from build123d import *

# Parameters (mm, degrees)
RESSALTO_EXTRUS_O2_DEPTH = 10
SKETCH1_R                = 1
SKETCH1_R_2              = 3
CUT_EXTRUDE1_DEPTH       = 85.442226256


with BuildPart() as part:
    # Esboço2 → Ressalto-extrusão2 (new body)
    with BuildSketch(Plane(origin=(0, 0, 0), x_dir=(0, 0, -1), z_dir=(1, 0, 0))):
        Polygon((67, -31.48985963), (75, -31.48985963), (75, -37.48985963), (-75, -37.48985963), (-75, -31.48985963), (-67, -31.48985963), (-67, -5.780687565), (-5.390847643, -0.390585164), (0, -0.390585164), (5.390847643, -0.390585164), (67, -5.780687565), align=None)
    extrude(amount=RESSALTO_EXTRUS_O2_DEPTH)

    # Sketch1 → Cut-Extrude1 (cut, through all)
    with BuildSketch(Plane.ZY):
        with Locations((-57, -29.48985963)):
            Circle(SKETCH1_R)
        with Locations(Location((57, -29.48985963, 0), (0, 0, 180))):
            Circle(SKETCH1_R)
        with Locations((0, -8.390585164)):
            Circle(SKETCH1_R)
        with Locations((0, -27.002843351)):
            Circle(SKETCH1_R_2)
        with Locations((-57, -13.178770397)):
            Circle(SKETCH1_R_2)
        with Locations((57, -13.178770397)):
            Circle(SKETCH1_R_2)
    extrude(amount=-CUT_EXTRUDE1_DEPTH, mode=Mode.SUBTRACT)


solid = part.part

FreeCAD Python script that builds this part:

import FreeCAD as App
import Part
import Sketcher
from FreeCAD import Vector
Q = App.Units.Quantity

doc = App.newDocument("Part")
params = doc.addObject("Spreadsheet::Sheet", "Params")
for row, (alias, value) in enumerate([
    ("sketch1_width", "6 mm"),
    ("sketch1_height", "8 mm"),
    ("sketch1_height2", "150 mm"),
    ("pad1_length", "10 mm"),
    ("sketch2_diameter", "2 mm"),
    ("sketch2_diameter2", "6 mm"),
], start=1):
    params.set(f"A{row}", alias)
    params.set(f"B{row}", "=" + value)
    params.setAlias(f"B{row}", alias)

body = doc.addObject("PartDesign::Body", "Body")

sketch1 = doc.addObject("Sketcher::SketchObject", "Sketch")
body.addObject(sketch1)
sketch1.AttachmentSupport = (doc.YZ_Plane, [""])
sketch1.MapMode = "FlatFace"
sketch1.addGeometry([
    Part.LineSegment(Vector(-31, -75, 0), Vector(-31, -67, 0)),
    Part.LineSegment(Vector(-31, -67, 0), Vector(-6, -67, 0)),
    Part.LineSegment(Vector(-6, -67, 0), Vector(0, -5, 0)),
    Part.LineSegment(Vector(0, -5, 0), Vector(0, 5, 0)),
    Part.LineSegment(Vector(0, 5, 0), Vector(-6, 67, 0)),
    Part.LineSegment(Vector(-6, 67, 0), Vector(-31, 67, 0)),
    Part.LineSegment(Vector(-31, 67, 0), Vector(-31, 75, 0)),
    Part.LineSegment(Vector(-31, 75, 0), Vector(-37, 75, 0)),
    Part.LineSegment(Vector(-37, 75, 0), Vector(-37, -75, 0)),
    Part.LineSegment(Vector(-37, -75, 0), Vector(-31, -75, 0)),
], False)
sketch1.addConstraint([
    Sketcher.Constraint("Coincident", 0, 2, 1, 1),
    Sketcher.Constraint("Coincident", 1, 2, 2, 1),
    Sketcher.Constraint("Coincident", 2, 2, 3, 1),
    Sketcher.Constraint("Coincident", 3, 2, 4, 1),
    Sketcher.Constraint("Coincident", 4, 2, 5, 1),
    Sketcher.Constraint("Coincident", 5, 2, 6, 1),
    Sketcher.Constraint("Coincident", 6, 2, 7, 1),
    Sketcher.Constraint("Coincident", 7, 2, 8, 1),
    Sketcher.Constraint("Coincident", 8, 2, 9, 1),
    Sketcher.Constraint("Coincident", 9, 2, 0, 1),
    Sketcher.Constraint("Vertical", 0),
    Sketcher.Constraint("Horizontal", 1),
    Sketcher.Constraint("Vertical", 3),
    Sketcher.Constraint("Horizontal", 5),
    Sketcher.Constraint("Vertical", 6),
    Sketcher.Constraint("Horizontal", 7),
    Sketcher.Constraint("Vertical", 8),
    Sketcher.Constraint("Horizontal", 9),
    Sketcher.Constraint("Symmetric", 1, 2, 4, 2, -1),
    Sketcher.Constraint("Symmetric", 6, 2, 9, 2, -1),
    Sketcher.Constraint("Equal", 2, 4),
    Sketcher.Constraint("DistanceX", 7, 2, 7, 1, 6.0),
    Sketcher.Constraint("DistanceY", 0, 1, 0, 2, 8.0),
    Sketcher.Constraint("DistanceY", 8, 2, 8, 1, 150.0),
    Sketcher.Constraint("Angle", 2, Q("85 deg")),
    Sketcher.Constraint("Distance", 2, 61.844489),
    Sketcher.Constraint("DistanceX", 1, 1, 1, 2, 25.709172),
    Sketcher.Constraint("DistanceX", 0, 2, -1, 1, 31.48986),
])
sketch1.setExpression("Constraints[21]", "Params.sketch1_width")
sketch1.setExpression("Constraints[22]", "Params.sketch1_height")
sketch1.setExpression("Constraints[23]", "Params.sketch1_height2")
pad1 = doc.addObject("PartDesign::Pad", "Pad")
body.addObject(pad1)
pad1.Profile = sketch1
pad1.setExpression("Length", "Params.pad1_length")

sketch2 = doc.addObject("Sketcher::SketchObject", "Sketch001")
body.addObject(sketch2)
sketch2.AttachmentSupport = (doc.YZ_Plane, [""])
sketch2.MapMode = "FlatFace"
sketch2.addGeometry([
    Part.Circle(Vector(-29.5, -57, 0), Vector(0, 0, 1), 1),
    Part.Circle(Vector(-29.5, 57, 0), Vector(0, 0, 1), 1),
    Part.Circle(Vector(-8.4, 0, 0), Vector(0, 0, 1), 1),
    Part.Circle(Vector(-27, 0, 0), Vector(0, 0, 1), 3),
    Part.Circle(Vector(-13.2, -57, 0), Vector(0, 0, 1), 3),
    Part.Circle(Vector(-13.2, 57, 0), Vector(0, 0, 1), 3),
], False)
sketch2.addConstraint([
    Sketcher.Constraint("Equal", 0, 1),
    Sketcher.Constraint("Equal", 1, 2),
    Sketcher.Constraint("Equal", 3, 4),
    Sketcher.Constraint("Equal", 4, 5),
    Sketcher.Constraint("Symmetric", 0, 3, 1, 3, -1),
    Sketcher.Constraint("Symmetric", 4, 3, 5, 3, -1),
    Sketcher.Constraint("PointOnObject", 2, 3, -1),
    Sketcher.Constraint("PointOnObject", 3, 3, -1),
    Sketcher.Constraint("Horizontal", 0, 3, 4, 3),
    Sketcher.Constraint("Diameter", 0, 2.0),
    Sketcher.Constraint("Diameter", 3, 6.0),
    Sketcher.Constraint("DistanceY", 0, 3, -1, 1, 57.0),
    Sketcher.Constraint("DistanceX", 0, 3, -1, 1, 29.48986),
    Sketcher.Constraint("DistanceX", 4, 3, -1, 1, 13.17877),
    Sketcher.Constraint("DistanceX", 3, 3, 2, 3, 18.612258),
    Sketcher.Constraint("DistanceX", 2, 3, -1, 1, 8.390585),
])
sketch2.setExpression("Constraints[9]", "Params.sketch2_diameter")
sketch2.setExpression("Constraints[10]", "Params.sketch2_diameter2")
pocket1 = doc.addObject("PartDesign::Pocket", "Pocket")
body.addObject(pocket1)
pocket1.Profile = sketch2
pocket1.Type = "ThroughAll"
pocket1.Reversed = True

doc.recompute()
